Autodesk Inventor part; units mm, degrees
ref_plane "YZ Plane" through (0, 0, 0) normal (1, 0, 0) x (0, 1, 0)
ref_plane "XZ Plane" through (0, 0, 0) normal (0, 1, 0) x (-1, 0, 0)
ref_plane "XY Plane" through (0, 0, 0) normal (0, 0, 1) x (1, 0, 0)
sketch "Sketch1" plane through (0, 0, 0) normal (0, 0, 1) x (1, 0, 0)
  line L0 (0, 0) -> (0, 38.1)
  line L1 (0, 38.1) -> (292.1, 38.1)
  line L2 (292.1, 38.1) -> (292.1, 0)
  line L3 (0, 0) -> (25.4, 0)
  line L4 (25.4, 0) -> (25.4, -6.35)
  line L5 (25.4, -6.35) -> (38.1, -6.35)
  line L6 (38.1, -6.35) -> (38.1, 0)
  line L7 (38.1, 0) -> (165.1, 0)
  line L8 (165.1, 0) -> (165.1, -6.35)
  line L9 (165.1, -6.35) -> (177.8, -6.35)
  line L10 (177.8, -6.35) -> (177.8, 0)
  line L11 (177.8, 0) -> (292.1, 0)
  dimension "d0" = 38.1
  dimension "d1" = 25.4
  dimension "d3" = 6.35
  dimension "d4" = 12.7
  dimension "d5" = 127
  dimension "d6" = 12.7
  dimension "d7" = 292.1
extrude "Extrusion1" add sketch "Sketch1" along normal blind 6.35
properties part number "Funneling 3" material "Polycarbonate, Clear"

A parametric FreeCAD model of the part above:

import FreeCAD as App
import Part
import Sketcher

V = App.Vector
Q = App.Units.Quantity


def add_polygon(sketch, points):
    """Adds a closed chain of lines whose ends are joined by coincident constraints."""
    first, n = sketch.GeometryCount, len(points)
    for a, b in zip(points, points[1:] + points[:1]):
        sketch.addGeometry(Part.LineSegment(App.Vector(*a, 0), App.Vector(*b, 0)), False)
    for i in range(n):
        sketch.addConstraint(Sketcher.Constraint("Coincident", first + i, 2, first + (i + 1) % n, 1))

doc = App.newDocument("Part")
body = doc.addObject("PartDesign::Body", "Body")

sketch1 = doc.addObject("Sketcher::SketchObject", "Sketch")
body.addObject(sketch1)
sketch1.AttachmentSupport = (doc.XY_Plane, [""])
sketch1.MapMode = "FlatFace"
add_polygon(sketch1, [(0, 38), (0, 0), (25, 0), (25, -6), (38, -6), (38, 0), (165, 0), (165, -6), (178, -6), (178, 0), (292, 0), (292, 38)])
sketch1.addConstraint([
    Sketcher.Constraint("Vertical", 0),
    Sketcher.Constraint("Horizontal", 1),
    Sketcher.Constraint("Vertical", 2),
    Sketcher.Constraint("Horizontal", 3),
    Sketcher.Constraint("Vertical", 4),
    Sketcher.Constraint("Horizontal", 5),
    Sketcher.Constraint("Vertical", 6),
    Sketcher.Constraint("Horizontal", 7),
    Sketcher.Constraint("Vertical", 8),
    Sketcher.Constraint("Horizontal", 9),
    Sketcher.Constraint("Vertical", 10),
    Sketcher.Constraint("Horizontal", 11),
    Sketcher.Constraint("Coincident", 0, 2, -1, 1),
    Sketcher.Constraint("PointOnObject", 4, 2, -1),
    Sketcher.Constraint("PointOnObject", 8, 2, -1),
    Sketcher.Constraint("Horizontal", 3, 2, 6, 2),
    Sketcher.Constraint("Equal", 3, 7),
    Sketcher.Constraint("DistanceX", 1, 1, 1, 2, Q("1 in")),
    Sketcher.Constraint("DistanceX", 5, 1, 5, 2, Q("5 in")),
    Sketcher.Constraint("DistanceX", 3, 1, 3, 2, Q("0.5 in")),
    Sketcher.Constraint("DistanceX", 11, 2, 11, 1, Q("11.5 in")),
    Sketcher.Constraint("DistanceY", 0, 2, 0, 1, Q("1.5 in")),
    Sketcher.Constraint("DistanceY", 2, 2, 2, 1, Q("0.25 in")),
])
pad1 = doc.addObject("PartDesign::Pad", "Pad")
body.addObject(pad1)
pad1.Profile = sketch1
pad1.Length = Q("0.25 in")

doc.recompute()
